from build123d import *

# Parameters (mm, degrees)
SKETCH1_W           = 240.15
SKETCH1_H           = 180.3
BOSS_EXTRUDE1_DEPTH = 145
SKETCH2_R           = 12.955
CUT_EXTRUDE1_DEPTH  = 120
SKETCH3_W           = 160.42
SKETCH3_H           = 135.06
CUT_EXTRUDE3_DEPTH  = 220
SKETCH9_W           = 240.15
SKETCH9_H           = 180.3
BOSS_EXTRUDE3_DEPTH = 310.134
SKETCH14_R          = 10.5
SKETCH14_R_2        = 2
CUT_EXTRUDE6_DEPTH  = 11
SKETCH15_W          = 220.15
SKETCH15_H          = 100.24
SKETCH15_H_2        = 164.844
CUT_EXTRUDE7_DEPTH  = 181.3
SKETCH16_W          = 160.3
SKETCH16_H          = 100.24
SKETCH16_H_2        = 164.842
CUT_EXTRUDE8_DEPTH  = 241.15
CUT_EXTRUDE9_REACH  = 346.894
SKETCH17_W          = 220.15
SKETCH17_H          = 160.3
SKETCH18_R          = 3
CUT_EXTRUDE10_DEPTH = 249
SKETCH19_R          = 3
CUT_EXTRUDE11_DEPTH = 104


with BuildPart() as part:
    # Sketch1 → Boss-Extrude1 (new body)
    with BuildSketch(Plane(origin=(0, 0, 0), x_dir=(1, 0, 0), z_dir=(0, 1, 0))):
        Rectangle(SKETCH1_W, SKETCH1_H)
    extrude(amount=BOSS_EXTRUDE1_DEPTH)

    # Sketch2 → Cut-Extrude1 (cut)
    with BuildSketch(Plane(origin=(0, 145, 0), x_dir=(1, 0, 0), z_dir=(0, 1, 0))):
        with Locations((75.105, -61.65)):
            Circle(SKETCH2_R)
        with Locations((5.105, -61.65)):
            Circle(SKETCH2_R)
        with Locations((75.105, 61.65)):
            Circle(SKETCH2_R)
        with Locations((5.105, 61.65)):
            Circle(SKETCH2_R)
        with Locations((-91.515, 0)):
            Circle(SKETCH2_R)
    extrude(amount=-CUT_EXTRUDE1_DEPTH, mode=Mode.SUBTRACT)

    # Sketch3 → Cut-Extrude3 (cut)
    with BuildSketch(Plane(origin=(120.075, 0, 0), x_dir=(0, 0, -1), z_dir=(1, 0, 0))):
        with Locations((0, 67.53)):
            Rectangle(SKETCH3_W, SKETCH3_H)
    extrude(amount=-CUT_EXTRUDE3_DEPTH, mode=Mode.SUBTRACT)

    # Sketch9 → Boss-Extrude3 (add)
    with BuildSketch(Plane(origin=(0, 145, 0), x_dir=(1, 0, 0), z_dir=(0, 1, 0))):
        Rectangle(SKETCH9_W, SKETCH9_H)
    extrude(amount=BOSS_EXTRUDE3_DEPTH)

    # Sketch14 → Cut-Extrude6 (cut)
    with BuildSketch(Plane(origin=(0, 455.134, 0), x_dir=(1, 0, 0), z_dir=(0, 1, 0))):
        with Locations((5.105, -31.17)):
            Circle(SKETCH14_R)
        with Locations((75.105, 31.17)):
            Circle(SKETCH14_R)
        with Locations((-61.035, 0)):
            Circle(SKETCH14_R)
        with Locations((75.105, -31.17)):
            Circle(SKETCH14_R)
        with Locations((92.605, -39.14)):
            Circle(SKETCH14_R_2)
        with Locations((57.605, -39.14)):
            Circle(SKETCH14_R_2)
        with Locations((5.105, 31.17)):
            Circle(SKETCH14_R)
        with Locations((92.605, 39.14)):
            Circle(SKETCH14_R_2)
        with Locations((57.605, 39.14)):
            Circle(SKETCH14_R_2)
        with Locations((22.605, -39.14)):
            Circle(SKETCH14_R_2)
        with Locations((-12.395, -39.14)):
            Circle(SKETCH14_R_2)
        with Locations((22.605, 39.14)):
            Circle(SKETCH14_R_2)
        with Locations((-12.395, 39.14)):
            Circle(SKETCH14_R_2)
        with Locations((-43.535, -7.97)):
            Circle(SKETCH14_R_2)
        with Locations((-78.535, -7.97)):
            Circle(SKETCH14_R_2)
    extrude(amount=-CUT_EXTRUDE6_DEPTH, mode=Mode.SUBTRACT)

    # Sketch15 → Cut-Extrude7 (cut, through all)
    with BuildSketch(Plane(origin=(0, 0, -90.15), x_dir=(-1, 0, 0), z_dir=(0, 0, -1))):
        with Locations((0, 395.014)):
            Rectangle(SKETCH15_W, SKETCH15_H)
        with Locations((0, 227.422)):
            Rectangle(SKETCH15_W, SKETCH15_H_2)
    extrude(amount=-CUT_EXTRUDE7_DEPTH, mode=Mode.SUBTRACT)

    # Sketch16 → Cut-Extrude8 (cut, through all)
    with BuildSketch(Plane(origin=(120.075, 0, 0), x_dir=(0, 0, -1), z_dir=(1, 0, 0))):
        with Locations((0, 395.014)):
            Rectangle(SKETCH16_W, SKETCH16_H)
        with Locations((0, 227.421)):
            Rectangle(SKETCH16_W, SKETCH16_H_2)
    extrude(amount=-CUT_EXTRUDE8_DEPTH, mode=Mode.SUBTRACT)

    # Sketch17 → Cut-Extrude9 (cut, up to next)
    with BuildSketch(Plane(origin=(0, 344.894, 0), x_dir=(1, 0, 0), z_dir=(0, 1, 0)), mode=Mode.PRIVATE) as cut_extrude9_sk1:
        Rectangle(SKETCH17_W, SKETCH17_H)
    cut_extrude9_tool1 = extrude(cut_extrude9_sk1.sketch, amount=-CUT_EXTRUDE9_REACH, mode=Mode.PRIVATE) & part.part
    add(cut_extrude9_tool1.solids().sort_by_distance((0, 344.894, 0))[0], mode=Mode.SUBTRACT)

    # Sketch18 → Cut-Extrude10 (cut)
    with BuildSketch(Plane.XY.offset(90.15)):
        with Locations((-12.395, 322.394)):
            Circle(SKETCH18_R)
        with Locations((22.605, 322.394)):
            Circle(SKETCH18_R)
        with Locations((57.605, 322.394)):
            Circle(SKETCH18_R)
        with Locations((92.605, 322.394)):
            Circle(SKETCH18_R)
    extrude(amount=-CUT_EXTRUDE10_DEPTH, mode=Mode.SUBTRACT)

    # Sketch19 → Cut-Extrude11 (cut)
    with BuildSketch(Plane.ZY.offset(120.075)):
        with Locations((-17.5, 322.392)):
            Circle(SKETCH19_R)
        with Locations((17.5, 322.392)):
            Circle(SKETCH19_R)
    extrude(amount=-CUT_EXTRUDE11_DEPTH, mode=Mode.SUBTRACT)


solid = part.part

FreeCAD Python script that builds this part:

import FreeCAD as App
import Part
import Sketcher


def add_polygon(sketch, points):
    """Adds a closed chain of lines whose ends are joined by coincident constraints."""
    first, n = sketch.GeometryCount, len(points)
    for a, b in zip(points, points[1:] + points[:1]):
        sketch.addGeometry(Part.LineSegment(App.Vector(*a, 0), App.Vector(*b, 0)), False)
    for i in range(n):
        sketch.addConstraint(Sketcher.Constraint("Coincident", first + i, 2, first + (i + 1) % n, 1))

doc = App.newDocument("Part")
body = doc.addObject("PartDesign::Body", "Body")

# Sketch on XZ plane
sketch1 = doc.addObject("Sketcher::SketchObject", "Sketch")
body.addObject(sketch1)
sketch1.AttachmentSupport = (doc.XZ_Plane, [""])
sketch1.MapMode = "FlatFace"
add_polygon(sketch1, [(-120.075, -90.15), (-120.075, 90.15), (120.075, 90.15), (120.075, -90.15)])  # lines 0-3
sketch1.addConstraint([
    Sketcher.Constraint("Vertical", 0),
    Sketcher.Constraint("Horizontal", 1),
    Sketcher.Constraint("Vertical", 2),
    Sketcher.Constraint("Horizontal", 3),
    Sketcher.Constraint("Symmetric", 0, 2, 2, 2, -1, 1),
    Sketcher.Constraint("DistanceY", 0, 1, 0, 2, 180.3),
    Sketcher.Constraint("DistanceX", 1, 1, 1, 2, 240.15),
])
pad1 = doc.addObject("PartDesign::Pad", "Pad")
body.addObject(pad1)
pad1.Profile = sketch1
pad1.Length = 145
pad1.Reversed = True

# Sketch on XZ plane
sketch2 = doc.addObject("Sketcher::SketchObject", "Sketch001")
body.addObject(sketch2)
sketch2.AttachmentSupport = (doc.XZ_Plane, [""])
sketch2.MapMode = "FlatFace"
sketch2.AttachmentOffset = App.Placement(App.Vector(0, 0, -145), App.Rotation())
sketch2.addGeometry([
    Part.Circle(App.Vector(75.105, 61.65, 0), App.Vector(0, 0, 1), 12.955),  # 0
    Part.Circle(App.Vector(5.105, 61.65, 0), App.Vector(0, 0, 1), 12.955),  # 1
    Part.Circle(App.Vector(75.105, -61.65, 0), App.Vector(0, 0, 1), 12.955),  # 2
    Part.Circle(App.Vector(5.105, -61.65, 0), App.Vector(0, 0, 1), 12.955),  # 3
    Part.Circle(App.Vector(-91.515, 0, 0), App.Vector(0, 0, 1), 12.955),  # 4
], False)
sketch2.addConstraint([
    Sketcher.Constraint("Equal", 0, 1),
    Sketcher.Constraint("Equal", 1, 2),
    Sketcher.Constraint("Equal", 2, 3),
    Sketcher.Constraint("Equal", 3, 4),
    Sketcher.Constraint("Symmetric", 0, 3, 2, 3, -1),
    Sketcher.Constraint("Symmetric", 1, 3, 3, 3, -1),
    Sketcher.Constraint("PointOnObject", 4, 3, -1),
    Sketcher.Constraint("Horizontal", 0, 3, 1, 3),
    Sketcher.Constraint("Diameter", 0, 25.91),
    Sketcher.Constraint("DistanceX", 1, 3, 0, 3, 70.0),
    Sketcher.Constraint("DistanceY", 2, 3, 0, 3, 123.3),
    Sketcher.Constraint("DistanceX", 4, 3, 1, 3, 96.62),
    Sketcher.Constraint("DistanceX", -1, 1, 0, 3, 75.105),
])
pocket1 = doc.addObject("PartDesign::Pocket", "Pocket")
body.addObject(pocket1)
pocket1.Profile = sketch2
pocket1.Length = 120
pocket1.Reversed = True

# Sketch on YZ plane
sketch3 = doc.addObject("Sketcher::SketchObject", "Sketch002")
body.addObject(sketch3)
sketch3.AttachmentSupport = (doc.YZ_Plane, [""])
sketch3.MapMode = "FlatFace"
sketch3.AttachmentOffset = App.Placement(App.Vector(0, 0, 120.075), App.Rotation())
add_polygon(sketch3, [(135.06, 80.21), (0, 80.21), (0, -80.21), (135.06, -80.21)])  # lines 0-3
sketch3.addConstraint([
    Sketcher.Constraint("Horizontal", 0),
    Sketcher.Constraint("Vertical", 1),
    Sketcher.Constraint("Horizontal", 2),
    Sketcher.Constraint("Vertical", 3),
    Sketcher.Constraint("Symmetric", 0, 2, 1, 2, -1, 1),
    Sketcher.Constraint("DistanceX", 0, 2, 0, 1, 135.06),
    Sketcher.Constraint("DistanceY", 1, 2, 1, 1, 160.42),
])
pocket2 = doc.addObject("PartDesign::Pocket", "Pocket001")
body.addObject(pocket2)
pocket2.Profile = sketch3
pocket2.Length = 220

# Sketch on XZ plane
sketch4 = doc.addObject("Sketcher::SketchObject", "Sketch003")
body.addObject(sketch4)
sketch4.AttachmentSupport = (doc.XZ_Plane, [""])
sketch4.MapMode = "FlatFace"
sketch4.AttachmentOffset = App.Placement(App.Vector(0, 0, -145), App.Rotation())
add_polygon(sketch4, [(-120.075, -90.15), (-120.075, 90.15), (120.075, 90.15), (120.075, -90.15)])  # lines 0-3
sketch4.addConstraint([
    Sketcher.Constraint("Vertical", 0),
    Sketcher.Constraint("Horizontal", 1),
    Sketcher.Constraint("Vertical", 2),
    Sketcher.Constraint("Horizontal", 3),
    Sketcher.Constraint("Symmetric", 0, 2, 2, 2, -1, 1),
    Sketcher.Constraint("DistanceY", 0, 1, 0, 2, 180.3),
    Sketcher.Constraint("DistanceX", 1, 1, 1, 2, 240.15),
])
pad2 = doc.addObject("PartDesign::Pad", "Pad001")
body.addObject(pad2)
pad2.Profile = sketch4
pad2.Length = 310.134
pad2.Reversed = True

# Sketch on XZ plane
sketch5 = doc.addObject("Sketcher::SketchObject", "Sketch004")
body.addObject(sketch5)
sketch5.AttachmentSupport = (doc.XZ_Plane, [""])
sketch5.MapMode = "FlatFace"
sketch5.AttachmentOffset = App.Placement(App.Vector(0, 0, -455.134), App.Rotation())
sketch5.addGeometry([
    Part.Circle(App.Vector(5.105, 31.17, 0), App.Vector(0, 0, 1), 10.5),  # 0
    Part.Circle(App.Vector(75.105, -31.17, 0), App.Vector(0, 0, 1), 10.5),  # 1
    Part.Circle(App.Vector(-61.035, 0, 0), App.Vector(0, 0, 1), 10.5),  # 2
    Part.Circle(App.Vector(75.105, 31.17, 0), App.Vector(0, 0, 1), 10.5),  # 3
    Part.Circle(App.Vector(92.605, 39.14, 0), App.Vector(0, 0, 1), 2),  # 4
    Part.Circle(App.Vector(57.605, 39.14, 0), App.Vector(0, 0, 1), 2),  # 5
    Part.Circle(App.Vector(5.105, -31.17, 0), App.Vector(0, 0, 1), 10.5),  # 6
    Part.Circle(App.Vector(92.605, -39.14, 0), App.Vector(0, 0, 1), 2),  # 7
    Part.Circle(App.Vector(57.605, -39.14, 0), App.Vector(0, 0, 1), 2),  # 8
    Part.Circle(App.Vector(22.605, 39.14, 0), App.Vector(0, 0, 1), 2),  # 9
    Part.Circle(App.Vector(-12.395, 39.14, 0), App.Vector(0, 0, 1), 2),  # 10
    Part.Circle(App.Vector(22.605, -39.14, 0), App.Vector(0, 0, 1), 2),  # 11
    Part.Circle(App.Vector(-12.395, -39.14, 0), App.Vector(0, 0, 1), 2),  # 12
    Part.Circle(App.Vector(-43.535, 7.97, 0), App.Vector(0, 0, 1), 2),  # 13
    Part.Circle(App.Vector(-78.535, 7.97, 0), App.Vector(0, 0, 1), 2),  # 14
], False)
sketch5.addConstraint([
    Sketcher.Constraint("Equal", 0, 1),
    Sketcher.Constraint("Equal", 1, 2),
    Sketcher.Constraint("Equal", 2, 3),
    Sketcher.Constraint("Equal", 4, 5),
    Sketcher.Constraint("Equal", 3, 6),
    Sketcher.Constraint("Equal", 5, 7),
    Sketcher.Constraint("Equal", 7, 8),
    Sketcher.Constraint("Equal", 8, 9),
    Sketcher.Constraint("Equal", 9, 10),
    Sketcher.Constraint("Equal", 10, 11),
    Sketcher.Constraint("Equal", 11, 12),
    Sketcher.Constraint("Equal", 12, 13),
    Sketcher.Constraint("Equal", 13, 14),
    Sketcher.Constraint("Symmetric", 1, 3, 3, 3, -1),
    Sketcher.Constraint("Symmetric", 0, 3, 6, 3, -1),
    Sketcher.Constraint("Symmetric", 4, 3, 7, 3, -1),
    Sketcher.Constraint("Symmetric", 5, 3, 8, 3, -1),
    Sketcher.Constraint("Symmetric", 9, 3, 11, 3, -1),
    Sketcher.Constraint("Symmetric", 10, 3, 12, 3, -1),
    Sketcher.Constraint("PointOnObject", 2, 3, -1),
    Sketcher.Constraint("Horizontal", 0, 3, 3, 3),
    Sketcher.Constraint("Horizontal", 4, 3, 5, 3),
    Sketcher.Constraint("Horizontal", 5, 3, 9, 3),
    Sketcher.Constraint("Horizontal", 9, 3, 10, 3),
    Sketcher.Constraint("Horizontal", 13, 3, 14, 3),
    Sketcher.Constraint("Diameter", 0, 21.0),
    Sketcher.Constraint("Diameter", 4, 4.0),
    Sketcher.Constraint("DistanceX", 0, 3, 1, 3, 70.0),
    Sketcher.Constraint("DistanceX", 5, 3, 4, 3, 35.0),
    Sketcher.Constraint("DistanceX", 9, 3, 5, 3, 35.0),
    Sketcher.Constraint("DistanceX", 10, 3, 9, 3, 35.0),
    Sketcher.Constraint("DistanceX", 14, 3, 13, 3, 35.0),
    Sketcher.Constraint("DistanceX", 3, 3, 4, 3, 17.5),
    Sketcher.Constraint("DistanceX", 2, 3, 13, 3, 17.5),
    Sketcher.Constraint("DistanceY", 13, 3, 0, 3, 23.2),
    Sketcher.Constraint("DistanceY", -1, 1, 0, 3, 31.17),
    Sketcher.Constraint("DistanceY", -1, 1, 4, 3, 39.14),
    Sketcher.Constraint("DistanceX", 2, 3, 0, 3, 66.14),
    Sketcher.Constraint("DistanceX", -1, 1, 0, 3, 5.105),
])
pocket3 = doc.addObject("PartDesign::Pocket", "Pocket002")
body.addObject(pocket3)
pocket3.Profile = sketch5
pocket3.Length = 11
pocket3.Reversed = True

# Sketch on XY plane
sketch6 = doc.addObject("Sketcher::SketchObject", "Sketch005")
body.addObject(sketch6)
sketch6.AttachmentSupport = (doc.XY_Plane, [""])
sketch6.MapMode = "FlatFace"
sketch6.AttachmentOffset = App.Placement(App.Vector(0, 0, -90.15), App.Rotation())
add_polygon(sketch6, [(110.075, 445.134), (110.075, 344.894), (-110.075, 344.894), (-110.075, 445.134)])  # lines 0-3
add_polygon(sketch6, [(110.075, 309.844), (110.075, 145), (-110.075, 145), (-110.075, 309.844)])  # lines 4-7
sketch6.addConstraint([
    Sketcher.Constraint("Vertical", 0),
    Sketcher.Constraint("Horizontal", 1),
    Sketcher.Constraint("Vertical", 2),
    Sketcher.Constraint("Horizontal", 3),
    Sketcher.Constraint("Vertical", 4),
    Sketcher.Constraint("Horizontal", 5),
    Sketcher.Constraint("Vertical", 6),
    Sketcher.Constraint("Horizontal", 7),
    Sketcher.Constraint("Vertical", 3, 2, 4, 2),
    Sketcher.Constraint("Vertical", 2, 2, 5, 2),
    Sketcher.Constraint("DistanceY", -1, 1, 4, 2, 145.0),
    Sketcher.Constraint("DistanceX", 1, 2, 1, 1, 220.15),
    Sketcher.Constraint("DistanceY", 0, 2, 0, 1, 100.24),
    Sketcher.Constraint("DistanceY", 4, 2, 4, 1, 164.844),
    Sketcher.Constraint("DistanceY", 6, 2, 1, 2, 35.05),
    Sketcher.Constraint("DistanceX", -1, 1, 0, 2, 110.075),
])
pocket4 = doc.addObject("PartDesign::Pocket", "Pocket003")
body.addObject(pocket4)
pocket4.Profile = sketch6
pocket4.Type = "ThroughAll"
pocket4.Reversed = True

# Sketch on YZ plane
sketch7 = doc.addObject("Sketcher::SketchObject", "Sketch006")
body.addObject(sketch7)
sketch7.AttachmentSupport = (doc.YZ_Plane, [""])
sketch7.MapMode = "FlatFace"
sketch7.AttachmentOffset = App.Placement(App.Vector(0, 0, 120.075), App.Rotation())
add_polygon(sketch7, [(445.134, 80.15), (344.894, 80.15), (344.894, -80.15), (445.134, -80.15)])  # lines 0-3
add_polygon(sketch7, [(309.842, 80.15), (145, 80.15), (145, -80.15), (309.842, -80.15)])  # lines 4-7
sketch7.addConstraint([
    Sketcher.Constraint("Horizontal", 0),
    Sketcher.Constraint("Vertical", 1),
    Sketcher.Constraint("Horizontal", 2),
    Sketcher.Constraint("Vertical", 3),
    Sketcher.Constraint("Horizontal", 4),
    Sketcher.Constraint("Vertical", 5),
    Sketcher.Constraint("Horizontal", 6),
    Sketcher.Constraint("Vertical", 7),
    Sketcher.Constraint("Horizontal", 3, 2, 4, 2),
    Sketcher.Constraint("Horizontal", 2, 2, 5, 2),
    Sketcher.Constraint("DistanceY", 1, 2, 1, 1, 160.3),
    Sketcher.Constraint("DistanceX", -1, 1, 4, 2, 145.0),
    Sketcher.Constraint("DistanceX", 0, 2, 0, 1, 100.24),
    Sketcher.Constraint("DistanceX", 4, 2, 4, 1, 164.842),
    Sketcher.Constraint("DistanceY", -1, 1, 0, 2, 80.15),
    Sketcher.Constraint("DistanceX", -1, 1, 0, 2, 344.894),
])
pocket5 = doc.addObject("PartDesign::Pocket", "Pocket004")
body.addObject(pocket5)
pocket5.Profile = sketch7
pocket5.Length = 241.15

# Sketch on XZ plane
sketch8 = doc.addObject("Sketcher::SketchObject", "Sketch007")
body.addObject(sketch8)
sketch8.AttachmentSupport = (doc.XZ_Plane, [""])
sketch8.MapMode = "FlatFace"
sketch8.AttachmentOffset = App.Placement(App.Vector(0, 0, -344.894), App.Rotation())
add_polygon(sketch8, [(-110.075, -80.15), (-110.075, 80.15), (110.075, 80.15), (110.075, -80.15)])  # lines 0-3
sketch8.addConstraint([
    Sketcher.Constraint("Vertical", 0),
    Sketcher.Constraint("Horizontal", 1),
    Sketcher.Constraint("Vertical", 2),
    Sketcher.Constraint("Horizontal", 3),
    Sketcher.Constraint("Symmetric", 0, 2, 2, 2, -1, 1),
    Sketcher.Constraint("DistanceY", 0, 1, 0, 2, 160.3),
    Sketcher.Constraint("DistanceX", 1, 1, 1, 2, 220.15),
])
pocket6 = doc.addObject("PartDesign::Pocket", "Pocket005")
body.addObject(pocket6)
pocket6.Profile = sketch8
pocket6.Type = "UpToFirst"
pocket6.Reversed = True

# Sketch on XY plane
sketch9 = doc.addObject("Sketcher::SketchObject", "Sketch008")
body.addObject(sketch9)
sketch9.AttachmentSupport = (doc.XY_Plane, [""])
sketch9.MapMode = "FlatFace"
sketch9.AttachmentOffset = App.Placement(App.Vector(0, 0, 90.15), App.Rotation())
sketch9.addGeometry([
    Part.Circle(App.Vector(-12.395, 322.394, 0), App.Vector(0, 0, 1), 3),
    Part.Circle(App.Vector(22.605, 322.394, 0), App.Vector(0, 0, 1), 3),
    Part.Circle(App.Vector(57.605, 322.394, 0), App.Vector(0, 0, 1), 3),
    Part.Circle(App.Vector(92.605, 322.394, 0), App.Vector(0, 0, 1), 3),
], False)
sketch9.addConstraint([
    Sketcher.Constraint("Equal", 0, 1),
    Sketcher.Constraint("Equal", 1, 2),
    Sketcher.Constraint("Equal", 2, 3),
    Sketcher.Constraint("Horizontal", 0, 3, 1, 3),
    Sketcher.Constraint("Horizontal", 1, 3, 2, 3),
    Sketcher.Constraint("Horizontal", 2, 3, 3, 3),
    Sketcher.Constraint("Diameter", 0, 6.0),
    Sketcher.Constraint("DistanceX", 0, 3, 1, 3, 35.0),
    Sketcher.Constraint("DistanceX", 1, 3, 2, 3, 35.0),
    Sketcher.Constraint("DistanceX", 2, 3, 3, 3, 35.0),
    Sketcher.Constraint("DistanceX", 0, 3, -1, 1, 12.395),
    Sketcher.Constraint("DistanceY", -1, 1, 0, 3, 322.394),
])
pocket7 = doc.addObject("PartDesign::Pocket", "Pocket006")
body.addObject(pocket7)
pocket7.Profile = sketch9
pocket7.Length = 249

# Sketch on YZ plane
sketch10 = doc.addObject("Sketcher::SketchObject", "Sketch009")
body.addObject(sketch10)
sketch10.AttachmentSupport = (doc.YZ_Plane, [""])
sketch10.MapMode = "FlatFace"
sketch10.AttachmentOffset = App.Placement(App.Vector(0, 0, -120.075), App.Rotation())
sketch10.addGeometry([
    Part.Circle(App.Vector(322.392, -17.5, 0), App.Vector(0, 0, 1), 3),
    Part.Circle(App.Vector(322.392, 17.5, 0), App.Vector(0, 0, 1), 3),
], False)
sketch10.addConstraint([
    Sketcher.Constraint("Equal", 0, 1),
    Sketcher.Constraint("Symmetric", 0, 3, 1, 3, -1),
    Sketcher.Constraint("Diameter", 0, 6.0),
    Sketcher.Constraint("DistanceY", 0, 3, 1, 3, 35.0),
    Sketcher.Constraint("DistanceX", -1, 1, 0, 3, 322.392),
])
pocket8 = doc.addObject("PartDesign::Pocket", "Pocket007")
body.addObject(pocket8)
pocket8.Profile = sketch10
pocket8.Length = 104
pocket8.Reversed = True

doc.recompute()
